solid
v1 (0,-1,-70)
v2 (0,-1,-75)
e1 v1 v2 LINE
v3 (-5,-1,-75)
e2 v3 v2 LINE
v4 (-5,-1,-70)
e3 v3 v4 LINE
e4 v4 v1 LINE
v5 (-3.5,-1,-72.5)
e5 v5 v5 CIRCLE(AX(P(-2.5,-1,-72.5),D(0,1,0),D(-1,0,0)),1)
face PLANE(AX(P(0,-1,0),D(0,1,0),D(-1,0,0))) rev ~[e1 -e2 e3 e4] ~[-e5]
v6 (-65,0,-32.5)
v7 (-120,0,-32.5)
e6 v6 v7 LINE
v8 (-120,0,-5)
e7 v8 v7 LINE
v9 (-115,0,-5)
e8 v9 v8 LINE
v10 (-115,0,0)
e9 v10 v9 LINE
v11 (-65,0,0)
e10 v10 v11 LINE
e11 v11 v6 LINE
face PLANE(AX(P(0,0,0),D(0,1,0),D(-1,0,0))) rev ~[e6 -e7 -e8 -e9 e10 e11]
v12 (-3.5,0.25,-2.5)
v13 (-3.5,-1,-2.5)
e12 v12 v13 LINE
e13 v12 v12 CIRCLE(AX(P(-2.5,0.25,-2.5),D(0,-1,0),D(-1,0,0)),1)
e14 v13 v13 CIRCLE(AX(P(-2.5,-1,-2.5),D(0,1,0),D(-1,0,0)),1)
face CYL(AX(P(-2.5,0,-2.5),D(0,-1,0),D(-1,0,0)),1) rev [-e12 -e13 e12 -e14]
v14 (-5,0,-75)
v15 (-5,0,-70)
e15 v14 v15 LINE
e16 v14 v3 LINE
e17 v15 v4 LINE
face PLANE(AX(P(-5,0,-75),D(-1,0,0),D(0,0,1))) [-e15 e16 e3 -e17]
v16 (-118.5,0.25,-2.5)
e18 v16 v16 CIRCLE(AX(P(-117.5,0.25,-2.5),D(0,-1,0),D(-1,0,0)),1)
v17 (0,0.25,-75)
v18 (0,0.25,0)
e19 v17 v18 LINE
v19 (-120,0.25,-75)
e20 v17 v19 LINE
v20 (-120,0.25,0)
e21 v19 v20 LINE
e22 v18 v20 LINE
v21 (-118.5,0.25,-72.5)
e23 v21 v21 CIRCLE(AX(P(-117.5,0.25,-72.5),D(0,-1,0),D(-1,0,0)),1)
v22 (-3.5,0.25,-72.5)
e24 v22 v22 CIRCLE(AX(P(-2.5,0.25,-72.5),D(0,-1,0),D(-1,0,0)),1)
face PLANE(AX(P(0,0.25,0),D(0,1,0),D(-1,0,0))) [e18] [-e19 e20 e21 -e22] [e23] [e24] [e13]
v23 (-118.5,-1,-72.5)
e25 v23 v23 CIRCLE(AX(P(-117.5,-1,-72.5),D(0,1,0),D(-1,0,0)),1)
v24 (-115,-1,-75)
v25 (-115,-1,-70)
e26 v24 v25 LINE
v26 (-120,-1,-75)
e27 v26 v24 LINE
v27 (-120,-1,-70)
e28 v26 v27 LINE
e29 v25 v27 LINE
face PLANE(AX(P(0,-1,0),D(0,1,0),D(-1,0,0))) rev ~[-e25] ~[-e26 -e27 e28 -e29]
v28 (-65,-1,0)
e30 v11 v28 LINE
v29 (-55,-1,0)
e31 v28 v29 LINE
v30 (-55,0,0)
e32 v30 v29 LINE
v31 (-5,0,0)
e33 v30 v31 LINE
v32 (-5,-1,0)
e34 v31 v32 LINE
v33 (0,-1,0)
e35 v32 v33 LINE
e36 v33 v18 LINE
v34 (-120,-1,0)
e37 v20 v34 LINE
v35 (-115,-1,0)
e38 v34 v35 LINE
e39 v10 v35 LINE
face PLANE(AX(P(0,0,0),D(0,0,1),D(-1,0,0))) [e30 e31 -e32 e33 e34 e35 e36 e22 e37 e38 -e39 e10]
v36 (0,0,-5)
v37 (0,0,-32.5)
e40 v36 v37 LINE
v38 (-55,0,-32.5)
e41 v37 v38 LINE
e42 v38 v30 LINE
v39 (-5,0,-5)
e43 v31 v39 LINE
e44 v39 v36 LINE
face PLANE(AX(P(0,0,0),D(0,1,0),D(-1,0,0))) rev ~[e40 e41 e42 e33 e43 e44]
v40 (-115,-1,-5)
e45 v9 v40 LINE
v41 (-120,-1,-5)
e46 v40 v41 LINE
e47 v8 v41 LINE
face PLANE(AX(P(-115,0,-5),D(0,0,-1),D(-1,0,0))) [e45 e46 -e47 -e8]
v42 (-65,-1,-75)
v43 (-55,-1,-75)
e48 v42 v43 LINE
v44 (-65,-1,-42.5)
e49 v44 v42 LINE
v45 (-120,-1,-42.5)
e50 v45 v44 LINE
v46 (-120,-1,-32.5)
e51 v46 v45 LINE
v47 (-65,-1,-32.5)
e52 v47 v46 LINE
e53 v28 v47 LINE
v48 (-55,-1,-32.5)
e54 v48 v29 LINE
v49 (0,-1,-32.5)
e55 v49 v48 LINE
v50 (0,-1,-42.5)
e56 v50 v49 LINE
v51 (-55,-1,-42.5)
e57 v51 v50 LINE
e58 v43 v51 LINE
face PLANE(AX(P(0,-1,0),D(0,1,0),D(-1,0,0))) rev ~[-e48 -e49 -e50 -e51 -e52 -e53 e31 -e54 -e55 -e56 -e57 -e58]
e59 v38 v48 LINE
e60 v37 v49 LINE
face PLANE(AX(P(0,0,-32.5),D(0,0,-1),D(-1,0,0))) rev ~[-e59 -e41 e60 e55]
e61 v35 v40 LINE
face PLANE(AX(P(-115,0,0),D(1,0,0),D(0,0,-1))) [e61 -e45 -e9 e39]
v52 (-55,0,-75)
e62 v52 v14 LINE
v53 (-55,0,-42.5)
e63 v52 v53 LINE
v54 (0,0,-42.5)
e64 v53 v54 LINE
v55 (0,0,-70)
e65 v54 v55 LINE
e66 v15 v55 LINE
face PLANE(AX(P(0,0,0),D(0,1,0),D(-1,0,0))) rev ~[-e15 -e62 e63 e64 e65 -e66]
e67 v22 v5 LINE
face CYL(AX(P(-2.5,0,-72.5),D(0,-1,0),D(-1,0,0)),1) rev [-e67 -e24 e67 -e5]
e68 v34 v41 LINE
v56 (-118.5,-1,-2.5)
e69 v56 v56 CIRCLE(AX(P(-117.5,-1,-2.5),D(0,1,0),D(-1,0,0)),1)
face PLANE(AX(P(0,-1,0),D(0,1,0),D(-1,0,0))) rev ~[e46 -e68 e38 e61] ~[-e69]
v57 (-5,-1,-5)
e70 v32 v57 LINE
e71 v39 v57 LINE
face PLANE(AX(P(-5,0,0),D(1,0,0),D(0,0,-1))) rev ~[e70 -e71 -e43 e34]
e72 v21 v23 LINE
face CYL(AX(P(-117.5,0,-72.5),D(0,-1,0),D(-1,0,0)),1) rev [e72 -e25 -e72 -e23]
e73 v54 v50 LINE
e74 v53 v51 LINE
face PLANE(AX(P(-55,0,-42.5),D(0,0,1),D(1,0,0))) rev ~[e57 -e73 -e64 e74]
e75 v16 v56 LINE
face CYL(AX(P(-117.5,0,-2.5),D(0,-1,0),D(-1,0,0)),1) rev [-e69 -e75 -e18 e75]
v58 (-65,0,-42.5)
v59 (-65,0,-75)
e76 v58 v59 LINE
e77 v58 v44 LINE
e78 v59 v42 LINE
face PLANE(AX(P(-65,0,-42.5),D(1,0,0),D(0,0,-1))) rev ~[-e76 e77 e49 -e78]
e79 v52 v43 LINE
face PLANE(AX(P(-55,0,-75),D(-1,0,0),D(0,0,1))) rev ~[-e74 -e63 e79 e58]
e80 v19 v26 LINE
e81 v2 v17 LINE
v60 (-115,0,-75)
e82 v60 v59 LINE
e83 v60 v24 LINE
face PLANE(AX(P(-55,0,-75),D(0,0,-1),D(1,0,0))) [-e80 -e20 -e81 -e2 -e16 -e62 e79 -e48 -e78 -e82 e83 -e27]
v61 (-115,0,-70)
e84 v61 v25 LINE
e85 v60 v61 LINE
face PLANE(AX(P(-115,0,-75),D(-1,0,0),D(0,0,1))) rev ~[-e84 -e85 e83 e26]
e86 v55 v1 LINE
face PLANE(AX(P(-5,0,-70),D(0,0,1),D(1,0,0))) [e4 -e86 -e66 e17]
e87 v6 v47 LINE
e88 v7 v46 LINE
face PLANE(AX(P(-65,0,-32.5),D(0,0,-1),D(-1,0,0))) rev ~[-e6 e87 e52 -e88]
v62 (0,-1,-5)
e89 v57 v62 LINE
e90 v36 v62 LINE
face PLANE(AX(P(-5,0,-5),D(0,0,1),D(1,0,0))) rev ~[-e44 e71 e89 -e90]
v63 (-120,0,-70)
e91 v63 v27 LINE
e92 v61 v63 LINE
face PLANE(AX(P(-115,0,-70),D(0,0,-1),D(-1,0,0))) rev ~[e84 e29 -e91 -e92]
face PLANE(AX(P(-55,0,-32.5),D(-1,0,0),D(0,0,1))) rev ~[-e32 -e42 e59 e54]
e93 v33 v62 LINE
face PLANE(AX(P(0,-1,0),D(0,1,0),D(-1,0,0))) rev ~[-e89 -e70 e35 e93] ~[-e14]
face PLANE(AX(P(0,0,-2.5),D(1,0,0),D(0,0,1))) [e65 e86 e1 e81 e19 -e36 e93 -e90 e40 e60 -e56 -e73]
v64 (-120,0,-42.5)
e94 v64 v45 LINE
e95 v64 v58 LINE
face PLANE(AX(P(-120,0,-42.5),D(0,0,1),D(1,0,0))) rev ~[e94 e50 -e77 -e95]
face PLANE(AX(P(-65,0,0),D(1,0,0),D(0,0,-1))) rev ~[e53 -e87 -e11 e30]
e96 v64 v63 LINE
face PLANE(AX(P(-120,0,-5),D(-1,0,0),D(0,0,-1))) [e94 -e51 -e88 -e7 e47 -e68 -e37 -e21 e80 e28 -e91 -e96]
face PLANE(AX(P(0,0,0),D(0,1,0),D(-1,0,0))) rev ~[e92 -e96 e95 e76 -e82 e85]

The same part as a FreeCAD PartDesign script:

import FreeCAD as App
import Part
import Sketcher


def add_polygon(sketch, points):
    """Adds a closed chain of lines whose ends are joined by coincident constraints."""
    first, n = sketch.GeometryCount, len(points)
    for a, b in zip(points, points[1:] + points[:1]):
        sketch.addGeometry(Part.LineSegment(App.Vector(*a, 0), App.Vector(*b, 0)), False)
    for i in range(n):
        sketch.addConstraint(Sketcher.Constraint("Coincident", first + i, 2, first + (i + 1) % n, 1))

doc = App.newDocument("Part")
params = doc.addObject("Spreadsheet::Sheet", "Params")
for row, (alias, value) in enumerate([
    ("sketch1_diameter", "2 mm"),
    ("sketch1_width", "120 mm"),
    ("sketch1_height", "75 mm"),
    ("pad1_length", "0.25 mm"),
    ("sketch2_diameter", "2 mm"),
    ("sketch2_width", "5 mm"),
    ("sketch2_width2", "10 mm"),
    ("pad2_length", "1 mm"),
], start=1):
    params.set(f"A{row}", alias)
    params.set(f"B{row}", "=" + value)
    params.setAlias(f"B{row}", alias)

body = doc.addObject("PartDesign::Body", "Body")

# Sketch on XZ plane
sketch1 = doc.addObject("Sketcher::SketchObject", "Sketch")
body.addObject(sketch1)
sketch1.AttachmentSupport = (doc.XZ_Plane, [""])
sketch1.MapMode = "FlatFace"
add_polygon(sketch1, [(0, 0), (0, -75), (-120, -75), (-120, 0)])  # lines 0-3
sketch1.addGeometry(Part.Circle(App.Vector(-2.5, -2.5, 0), App.Vector(0, 0, 1), 1), False)  # 4
sketch1.addGeometry(Part.Circle(App.Vector(-117.5, -2.5, 0), App.Vector(0, 0, 1), 1), False)  # 5
sketch1.addGeometry(Part.Circle(App.Vector(-2.5, -72.5, 0), App.Vector(0, 0, 1), 1), False)  # 6
sketch1.addGeometry(Part.Circle(App.Vector(-117.5, -72.5, 0), App.Vector(0, 0, 1), 1), False)  # 7
sketch1.addConstraint([
    Sketcher.Constraint("Vertical", 0),
    Sketcher.Constraint("Horizontal", 1),
    Sketcher.Constraint("Vertical", 2),
    Sketcher.Constraint("Horizontal", 3),
    Sketcher.Constraint("Coincident", 3, 2, -1, 1),
    Sketcher.Constraint("Equal", 4, 5),
    Sketcher.Constraint("Equal", 5, 6),
    Sketcher.Constraint("Equal", 6, 7),
    Sketcher.Constraint("Horizontal", 4, 3, 5, 3),
    Sketcher.Constraint("Horizontal", 6, 3, 7, 3),
    Sketcher.Constraint("Vertical", 4, 3, 6, 3),
    Sketcher.Constraint("Vertical", 5, 3, 7, 3),
    Sketcher.Constraint("Diameter", 4, 2.0),
    Sketcher.Constraint("DistanceX", 1, 2, 1, 1, 120.0),
    Sketcher.Constraint("DistanceY", 0, 2, 0, 1, 75.0),
    Sketcher.Constraint("DistanceX", 4, 3, -1, 1, 2.5),
    Sketcher.Constraint("DistanceY", 4, 3, -1, 1, 2.5),
    Sketcher.Constraint("DistanceY", 0, 2, 6, 3, 2.5),
    Sketcher.Constraint("DistanceX", 1, 2, 7, 3, 2.5),
])
sketch1.setExpression("Constraints[16]", "Params.sketch1_diameter")
sketch1.setExpression("Constraints[17]", "Params.sketch1_width")
sketch1.setExpression("Constraints[18]", "Params.sketch1_height")
pad1 = doc.addObject("PartDesign::Pad", "Pad")
body.addObject(pad1)
pad1.Profile = sketch1
pad1.setExpression("Length", "Params.pad1_length")
pad1.Reversed = True

# Sketch on XZ plane
sketch2 = doc.addObject("Sketcher::SketchObject", "Sketch001")
body.addObject(sketch2)
sketch2.AttachmentSupport = (doc.XZ_Plane, [""])
sketch2.MapMode = "FlatFace"
add_polygon(sketch2, [(0, 0), (0, -5), (-5, -5), (-5, 0)])  # lines 0-3
sketch2.addGeometry(Part.Circle(App.Vector(-2.5, -2.5, 0), App.Vector(0, 0, 1), 1), False)  # 4
add_polygon(sketch2, [(-55, 0), (-55, -32.5), (0, -32.5), (0, -42.5), (-55, -42.5), (-55, -75), (-65, -75), (-65, -42.5), (-120, -42.5), (-120, -32.5), (-65, -32.5), (-65, 0)])  # lines 5-16
add_polygon(sketch2, [(-115, 0), (-115, -5), (-120, -5), (-120, 0)])  # lines 17-20
sketch2.addGeometry(Part.Circle(App.Vector(-117.5, -2.5, 0), App.Vector(0, 0, 1), 1), False)  # 21
add_polygon(sketch2, [(-5, -70), (0, -70), (0, -75), (-5, -75)])  # lines 22-25
sketch2.addGeometry(Part.Circle(App.Vector(-2.5, -72.5, 0), App.Vector(0, 0, 1), 1), False)  # 26
add_polygon(sketch2, [(-120, -70), (-115, -70), (-115, -75), (-120, -75)])  # lines 27-30
sketch2.addGeometry(Part.Circle(App.Vector(-117.5, -72.5, 0), App.Vector(0, 0, 1), 1), False)  # 31
sketch2.addConstraint([
    Sketcher.Constraint("Vertical", 0),
    Sketcher.Constraint("Horizontal", 1),
    Sketcher.Constraint("Vertical", 2),
    Sketcher.Constraint("Horizontal", 3),
    Sketcher.Constraint("Vertical", 5),
    Sketcher.Constraint("Horizontal", 6),
    Sketcher.Constraint("Vertical", 7),
    Sketcher.Constraint("Horizontal", 8),
    Sketcher.Constraint("Vertical", 9),
    Sketcher.Constraint("Horizontal", 10),
    Sketcher.Constraint("Vertical", 11),
    Sketcher.Constraint("Horizontal", 12),
    Sketcher.Constraint("Vertical", 13),
    Sketcher.Constraint("Horizontal", 14),
    Sketcher.Constraint("Vertical", 15),
    Sketcher.Constraint("Horizontal", 16),
    Sketcher.Constraint("Vertical", 17),
    Sketcher.Constraint("Horizontal", 18),
    Sketcher.Constraint("Vertical", 19),
    Sketcher.Constraint("Horizontal", 20),
    Sketcher.Constraint("Horizontal", 22),
    Sketcher.Constraint("Vertical", 23),
    Sketcher.Constraint("Horizontal", 24),
    Sketcher.Constraint("Vertical", 25),
    Sketcher.Constraint("Horizontal", 27),
    Sketcher.Constraint("Vertical", 28),
    Sketcher.Constraint("Horizontal", 29),
    Sketcher.Constraint("Vertical", 30),
    Sketcher.Constraint("Coincident", 3, 2, -1, 1),
    Sketcher.Constraint("Equal", 4, 21),
    Sketcher.Constraint("Equal", 21, 26),
    Sketcher.Constraint("Equal", 26, 31),
    Sketcher.Constraint("PointOnObject", 6, 2, -2),
    Sketcher.Constraint("PointOnObject", 15, 2, -1),
    Sketcher.Constraint("PointOnObject", 19, 2, -1),
    Sketcher.Constraint("PointOnObject", 22, 2, -2),
    Sketcher.Constraint("Horizontal", 4, 3, 21, 3),
    Sketcher.Constraint("Horizontal", 26, 3, 31, 3),
    Sketcher.Constraint("Horizontal", 8, 2, 11, 2),
    Sketcher.Constraint("Horizontal", 6, 2, 13, 2),
    Sketcher.Constraint("Horizontal", 1, 2, 17, 2),
    Sketcher.Constraint("Horizontal", 10, 2, 23, 2),
    Sketcher.Constraint("Horizontal", 25, 2, 27, 2),
    Sketcher.Constraint("Horizontal", 24, 2, 28, 2),
    Sketcher.Constraint("Vertical", 4, 3, 26, 3),
    Sketcher.Constraint("Vertical", 21, 3, 31, 3),
    Sketcher.Constraint("Vertical", 5, 2, 8, 2),
    Sketcher.Constraint("Vertical", 11, 2, 14, 2),
    Sketcher.Constraint("Vertical", 13, 2, 18, 2),
    Sketcher.Constraint("Vertical", 2, 2, 24, 2),
    Sketcher.Constraint("Vertical", 20, 2, 27, 2),
    Sketcher.Constraint("Vertical", 19, 2, 29, 2),
    Sketcher.Constraint("Equal", 8, 12),
    Sketcher.Constraint("Equal", 3, 18),
    Sketcher.Constraint("Equal", 29, 0),
    Sketcher.Constraint("Equal", 16, 7),
    Sketcher.Constraint("Equal", 5, 9),
    Sketcher.Constraint("Equal", 19, 23),
    Sketcher.Constraint("Diameter", 4, 2.0),
    Sketcher.Constraint("DistanceX", 1, 2, 1, 1, 5.0),
    Sketcher.Constraint("DistanceX", 10, 2, 10, 1, 10.0),
    Sketcher.Constraint("DistanceY", 9, 2, -1, 1, 75.0),
    Sketcher.Constraint("DistanceX", 12, 2, -1, 1, 120.0),
    Sketcher.Constraint("DistanceX", 4, 3, -1, 1, 2.5),
    Sketcher.Constraint("DistanceY", 4, 3, -1, 1, 2.5),
    Sketcher.Constraint("DistanceY", 9, 2, 26, 3, 2.5),
    Sketcher.Constraint("DistanceX", 12, 2, 31, 3, 2.5),
])
sketch2.setExpression("Constraints[86]", "Params.sketch2_diameter")
sketch2.setExpression("Constraints[87]", "Params.sketch2_width")
sketch2.setExpression("Constraints[88]", "Params.sketch2_width2")
pad2 = doc.addObject("PartDesign::Pad", "Pad001")
body.addObject(pad2)
pad2.Profile = sketch2
pad2.setExpression("Length", "Params.pad2_length")

doc.recompute()
